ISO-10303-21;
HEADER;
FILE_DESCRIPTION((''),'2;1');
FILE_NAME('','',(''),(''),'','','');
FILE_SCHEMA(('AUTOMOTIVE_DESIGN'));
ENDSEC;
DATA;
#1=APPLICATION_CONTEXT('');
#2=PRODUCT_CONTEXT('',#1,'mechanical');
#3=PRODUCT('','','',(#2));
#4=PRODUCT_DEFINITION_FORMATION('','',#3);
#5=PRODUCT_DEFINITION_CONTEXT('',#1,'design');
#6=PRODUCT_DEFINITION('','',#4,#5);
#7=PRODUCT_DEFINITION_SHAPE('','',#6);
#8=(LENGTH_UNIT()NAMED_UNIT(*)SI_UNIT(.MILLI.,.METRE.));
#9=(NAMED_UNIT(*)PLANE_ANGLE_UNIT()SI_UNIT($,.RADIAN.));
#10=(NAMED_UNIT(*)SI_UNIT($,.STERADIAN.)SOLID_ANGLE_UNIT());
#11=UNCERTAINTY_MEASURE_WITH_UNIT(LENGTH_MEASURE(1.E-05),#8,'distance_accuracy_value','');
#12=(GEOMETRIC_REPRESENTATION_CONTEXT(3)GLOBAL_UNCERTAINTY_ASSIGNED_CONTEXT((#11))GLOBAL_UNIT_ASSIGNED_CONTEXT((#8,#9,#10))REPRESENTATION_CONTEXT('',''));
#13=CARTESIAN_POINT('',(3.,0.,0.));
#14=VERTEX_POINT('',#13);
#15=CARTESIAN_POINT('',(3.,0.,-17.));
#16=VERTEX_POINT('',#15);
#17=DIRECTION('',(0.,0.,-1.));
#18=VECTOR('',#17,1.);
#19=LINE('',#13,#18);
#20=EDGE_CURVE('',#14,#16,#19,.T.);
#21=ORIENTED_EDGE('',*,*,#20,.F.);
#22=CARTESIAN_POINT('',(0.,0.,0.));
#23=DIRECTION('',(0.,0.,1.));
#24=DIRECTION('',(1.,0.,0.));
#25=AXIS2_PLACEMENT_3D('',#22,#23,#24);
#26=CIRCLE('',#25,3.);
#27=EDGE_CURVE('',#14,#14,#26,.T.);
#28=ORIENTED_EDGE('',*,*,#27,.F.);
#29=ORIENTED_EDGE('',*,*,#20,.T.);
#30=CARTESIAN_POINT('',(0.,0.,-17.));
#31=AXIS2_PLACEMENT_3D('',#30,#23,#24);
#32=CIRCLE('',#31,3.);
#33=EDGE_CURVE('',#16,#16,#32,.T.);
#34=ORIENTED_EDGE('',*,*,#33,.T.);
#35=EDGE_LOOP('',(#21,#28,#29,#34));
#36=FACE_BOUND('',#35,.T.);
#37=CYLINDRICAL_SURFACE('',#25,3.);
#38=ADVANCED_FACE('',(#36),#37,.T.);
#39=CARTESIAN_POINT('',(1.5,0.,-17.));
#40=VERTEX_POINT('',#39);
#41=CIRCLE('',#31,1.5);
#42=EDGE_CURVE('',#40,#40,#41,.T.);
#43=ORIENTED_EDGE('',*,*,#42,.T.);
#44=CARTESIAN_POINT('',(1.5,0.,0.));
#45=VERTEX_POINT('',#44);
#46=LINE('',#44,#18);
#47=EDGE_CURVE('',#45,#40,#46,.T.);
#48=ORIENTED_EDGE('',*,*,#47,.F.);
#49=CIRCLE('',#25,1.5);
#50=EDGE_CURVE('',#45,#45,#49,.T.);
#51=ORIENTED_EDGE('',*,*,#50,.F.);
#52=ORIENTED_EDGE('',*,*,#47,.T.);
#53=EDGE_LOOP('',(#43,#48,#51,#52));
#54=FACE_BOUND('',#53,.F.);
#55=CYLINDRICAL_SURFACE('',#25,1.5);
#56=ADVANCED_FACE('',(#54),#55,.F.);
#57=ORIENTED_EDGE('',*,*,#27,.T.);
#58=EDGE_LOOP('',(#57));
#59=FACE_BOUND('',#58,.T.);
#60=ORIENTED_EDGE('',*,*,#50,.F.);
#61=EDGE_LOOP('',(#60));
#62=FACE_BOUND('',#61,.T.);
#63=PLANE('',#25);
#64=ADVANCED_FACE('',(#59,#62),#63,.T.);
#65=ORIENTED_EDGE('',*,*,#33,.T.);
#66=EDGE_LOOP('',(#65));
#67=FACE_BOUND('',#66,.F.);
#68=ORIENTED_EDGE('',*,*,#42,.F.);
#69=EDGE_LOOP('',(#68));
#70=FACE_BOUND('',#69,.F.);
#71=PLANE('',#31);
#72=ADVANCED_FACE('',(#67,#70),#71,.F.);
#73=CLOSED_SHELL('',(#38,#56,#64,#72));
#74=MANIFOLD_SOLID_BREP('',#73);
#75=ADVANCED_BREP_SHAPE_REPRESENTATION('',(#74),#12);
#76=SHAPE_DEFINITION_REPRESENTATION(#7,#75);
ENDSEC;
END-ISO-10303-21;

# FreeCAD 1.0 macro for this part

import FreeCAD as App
import Part
import Sketcher

V = App.Vector
Q = App.Units.Quantity

doc = App.newDocument("Part")
body = doc.addObject("PartDesign::Body", "Body")

# Sketch on XY plane
sketch1 = doc.addObject("Sketcher::SketchObject", "Sketch")
body.addObject(sketch1)
sketch1.AttachmentSupport = (doc.XY_Plane, [""])
sketch1.MapMode = "FlatFace"
sketch1.addGeometry(Part.Circle(V(0, 0, 0), V(0, 0, 1), 3), False)
sketch1.addGeometry(Part.Circle(V(0, 0, 0), V(0, 0, 1), 1.5), False)
sketch1.addConstraint(Sketcher.Constraint("Coincident", 0, 3, -1, 1))
sketch1.addConstraint(Sketcher.Constraint("Coincident", 1, 3, -1, 1))
sketch1.addConstraint(Sketcher.Constraint("Diameter", 0, Q("6 mm")))
sketch1.addConstraint(Sketcher.Constraint("Diameter", 1, Q("3 mm")))
pad1 = doc.addObject("PartDesign::Pad", "Pad")
body.addObject(pad1)
pad1.Profile = sketch1
pad1.Length = 17
pad1.Reversed = True

doc.recompute()
